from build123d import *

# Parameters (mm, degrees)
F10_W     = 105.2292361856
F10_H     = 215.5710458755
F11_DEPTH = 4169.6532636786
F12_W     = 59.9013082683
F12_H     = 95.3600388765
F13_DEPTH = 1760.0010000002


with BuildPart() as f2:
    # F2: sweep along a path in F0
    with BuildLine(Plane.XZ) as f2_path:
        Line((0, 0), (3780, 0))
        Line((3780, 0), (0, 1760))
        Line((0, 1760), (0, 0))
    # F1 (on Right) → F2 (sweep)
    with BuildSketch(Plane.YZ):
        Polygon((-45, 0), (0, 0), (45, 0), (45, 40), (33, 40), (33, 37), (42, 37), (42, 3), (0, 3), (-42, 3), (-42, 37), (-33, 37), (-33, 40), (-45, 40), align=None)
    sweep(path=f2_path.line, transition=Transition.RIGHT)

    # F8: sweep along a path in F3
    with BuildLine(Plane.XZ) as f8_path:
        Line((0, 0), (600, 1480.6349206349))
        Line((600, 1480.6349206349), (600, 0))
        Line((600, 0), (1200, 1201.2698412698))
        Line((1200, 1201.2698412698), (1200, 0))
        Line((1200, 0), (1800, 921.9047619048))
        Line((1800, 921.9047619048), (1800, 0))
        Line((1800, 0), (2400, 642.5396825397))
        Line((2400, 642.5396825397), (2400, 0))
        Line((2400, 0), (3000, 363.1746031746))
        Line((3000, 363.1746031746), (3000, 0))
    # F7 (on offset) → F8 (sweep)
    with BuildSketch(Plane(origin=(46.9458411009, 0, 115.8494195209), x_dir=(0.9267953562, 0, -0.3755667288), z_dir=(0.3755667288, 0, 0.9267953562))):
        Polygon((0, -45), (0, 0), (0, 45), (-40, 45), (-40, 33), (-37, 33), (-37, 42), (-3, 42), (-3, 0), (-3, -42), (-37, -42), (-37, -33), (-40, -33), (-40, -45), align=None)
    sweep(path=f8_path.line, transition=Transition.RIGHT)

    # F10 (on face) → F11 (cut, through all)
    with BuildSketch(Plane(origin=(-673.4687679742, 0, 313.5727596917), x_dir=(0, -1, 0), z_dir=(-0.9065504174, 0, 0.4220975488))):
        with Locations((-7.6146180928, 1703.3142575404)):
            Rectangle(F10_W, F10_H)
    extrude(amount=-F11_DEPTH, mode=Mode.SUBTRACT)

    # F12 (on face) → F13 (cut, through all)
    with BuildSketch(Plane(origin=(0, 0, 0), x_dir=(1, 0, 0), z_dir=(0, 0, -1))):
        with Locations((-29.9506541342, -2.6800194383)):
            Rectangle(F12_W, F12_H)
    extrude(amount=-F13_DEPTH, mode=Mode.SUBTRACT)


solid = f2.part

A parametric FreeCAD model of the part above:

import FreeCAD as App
import Part
import Sketcher

V = App.Vector
Q = App.Units.Quantity


def add_polygon(sketch, points):
    """Adds a closed chain of lines whose ends are joined by coincident constraints."""
    first, n = sketch.GeometryCount, len(points)
    for a, b in zip(points, points[1:] + points[:1]):
        sketch.addGeometry(Part.LineSegment(App.Vector(*a, 0), App.Vector(*b, 0)), False)
    for i in range(n):
        sketch.addConstraint(Sketcher.Constraint("Coincident", first + i, 2, first + (i + 1) % n, 1))

doc = App.newDocument("Part")
body = doc.addObject("PartDesign::Body", "Body")

# Sketch on YZ plane
sketch1 = body.newObject("Sketcher::SketchObject", "Sketch")
sketch1.AttachmentSupport = (doc.getObject("YZ_Plane"), [""])
sketch1.MapMode = "FlatFace"
add_polygon(sketch1, [(-45, 0), (45, 0), (45, 40), (33, 40), (33, 37), (42, 37), (42, 3), (-42, 3), (-42, 37), (-33, 37), (-33, 40), (-45, 40)])  # lines 0-11
sketch1.addConstraint([
    Sketcher.Constraint("Horizontal", 0),
    Sketcher.Constraint("Vertical", 1),
    Sketcher.Constraint("Horizontal", 2),
    Sketcher.Constraint("Vertical", 3),
    Sketcher.Constraint("Horizontal", 4),
    Sketcher.Constraint("Vertical", 5),
    Sketcher.Constraint("Horizontal", 6),
    Sketcher.Constraint("Vertical", 7),
    Sketcher.Constraint("Horizontal", 8),
    Sketcher.Constraint("Vertical", 9),
    Sketcher.Constraint("Horizontal", 10),
    Sketcher.Constraint("Vertical", 11),
    Sketcher.Constraint("Symmetric", 0, 2, 11, 2, -1, 1),
    Sketcher.Constraint("Symmetric", 4, 2, 7, 2, -2),
    Sketcher.Constraint("Symmetric", 2, 2, 9, 2, -2),
    Sketcher.Constraint("DistanceX", 0, 1, 0, 2, Q("90 mm")),
    Sketcher.Constraint("DistanceX", 2, 2, 2, 1, Q("12 mm")),
    Sketcher.Constraint("DistanceX", 4, 1, 4, 2, Q("9 mm")),
    Sketcher.Constraint("DistanceY", 1, 1, 1, 2, Q("40 mm")),
    Sketcher.Constraint("DistanceY", 3, 2, 3, 1, Q("3 mm")),
    Sketcher.Constraint("DistanceY", 5, 2, 5, 1, Q("34 mm")),
])

# Sketch on XZ plane
sketch2 = body.newObject("Sketcher::SketchObject", "Sketch001")
sketch2.AttachmentSupport = (doc.getObject("XZ_Plane"), [""])
sketch2.MapMode = "FlatFace"
add_polygon(sketch2, [(0, 0), (3780, 0), (0, 1760)])  # lines 0-2
sketch2.addConstraint([
    Sketcher.Constraint("Horizontal", 0),
    Sketcher.Constraint("Vertical", 2),
    Sketcher.Constraint("Coincident", 2, 2, -1, 1),
    Sketcher.Constraint("DistanceX", 0, 1, 0, 2, Q("3780 mm")),
    Sketcher.Constraint("DistanceY", 2, 2, 2, 1, Q("1760 mm")),
])
doc.recompute()

additivepipe = body.newObject("PartDesign::AdditivePipe", "AdditivePipe")
additivepipe.Profile = sketch1
additivepipe.Spine = (sketch2, ["Edge1", "Edge2", "Edge3"])
additivepipe.Transition = "Right corner"

# Sketch on an angled plane
sketch3 = body.newObject("Sketcher::SketchObject", "Sketch002")
sketch3.Placement = App.Placement(V(46.945841, 0, 115.84942), App.Rotation(V(0.926795356, 0, -0.375566729), V(0, 1, 0), V(0.375566729, 0, 0.926795356), "ZXY"))
add_polygon(sketch3, [(0, -45), (0, 45), (-40, 45), (-40, 33), (-37, 33), (-37, 42), (-3, 42), (-3, -42), (-37, -42), (-37, -33), (-40, -33), (-40, -45)])  # lines 0-11
sketch3.addConstraint([
    Sketcher.Constraint("Vertical", 0),
    Sketcher.Constraint("Horizontal", 1),
    Sketcher.Constraint("Vertical", 2),
    Sketcher.Constraint("Horizontal", 3),
    Sketcher.Constraint("Vertical", 4),
    Sketcher.Constraint("Horizontal", 5),
    Sketcher.Constraint("Vertical", 6),
    Sketcher.Constraint("Horizontal", 7),
    Sketcher.Constraint("Vertical", 8),
    Sketcher.Constraint("Horizontal", 9),
    Sketcher.Constraint("Vertical", 10),
    Sketcher.Constraint("Horizontal", 11),
    Sketcher.Constraint("Symmetric", 0, 2, 11, 2, -1, 1),
    Sketcher.Constraint("Symmetric", 4, 2, 7, 2, -1),
    Sketcher.Constraint("Symmetric", 2, 2, 9, 2, -1),
    Sketcher.Constraint("DistanceX", 1, 2, 1, 1, Q("40 mm")),
    Sketcher.Constraint("DistanceX", 3, 1, 3, 2, Q("3 mm")),
    Sketcher.Constraint("DistanceX", 5, 1, 5, 2, Q("34 mm")),
    Sketcher.Constraint("DistanceY", 0, 1, 0, 2, Q("90 mm")),
    Sketcher.Constraint("DistanceY", 2, 2, 2, 1, Q("12 mm")),
    Sketcher.Constraint("DistanceY", 4, 1, 4, 2, Q("9 mm")),
])

# Sketch on XZ plane
sketch4 = body.newObject("Sketcher::SketchObject", "Sketch003")
sketch4.AttachmentSupport = (doc.getObject("XZ_Plane"), [""])
sketch4.MapMode = "FlatFace"
sketch4.addGeometry([
    Part.LineSegment(V(0, 0, 0), V(600, 1481, 0)),  # 0
    Part.LineSegment(V(600, 1481, 0), V(600, 0, 0)),  # 1
    Part.LineSegment(V(600, 0, 0), V(1200, 1201, 0)),  # 2
    Part.LineSegment(V(1200, 1201, 0), V(1200, 0, 0)),  # 3
    Part.LineSegment(V(1200, 0, 0), V(1800, 922, 0)),  # 4
    Part.LineSegment(V(1800, 922, 0), V(1800, 0, 0)),  # 5
    Part.LineSegment(V(1800, 0, 0), V(2400, 643, 0)),  # 6
    Part.LineSegment(V(2400, 643, 0), V(2400, 0, 0)),  # 7
    Part.LineSegment(V(2400, 0, 0), V(3000, 363, 0)),  # 8
    Part.LineSegment(V(3000, 363, 0), V(3000, 0, 0)),  # 9
], False)
sketch4.addConstraint([
    Sketcher.Constraint("Coincident", 0, 2, 1, 1),
    Sketcher.Constraint("Coincident", 1, 2, 2, 1),
    Sketcher.Constraint("Coincident", 2, 2, 3, 1),
    Sketcher.Constraint("Coincident", 3, 2, 4, 1),
    Sketcher.Constraint("Coincident", 4, 2, 5, 1),
    Sketcher.Constraint("Coincident", 5, 2, 6, 1),
    Sketcher.Constraint("Coincident", 6, 2, 7, 1),
    Sketcher.Constraint("Coincident", 7, 2, 8, 1),
    Sketcher.Constraint("Coincident", 8, 2, 9, 1),
    Sketcher.Constraint("Vertical", 1),
    Sketcher.Constraint("Vertical", 3),
    Sketcher.Constraint("Vertical", 5),
    Sketcher.Constraint("Vertical", 7),
    Sketcher.Constraint("Vertical", 9),
    Sketcher.Constraint("Coincident", 0, 1, -1, 1),
    Sketcher.Constraint("PointOnObject", 1, 2, -1),
    Sketcher.Constraint("PointOnObject", 3, 2, -1),
    Sketcher.Constraint("PointOnObject", 5, 2, -1),
    Sketcher.Constraint("PointOnObject", 7, 2, -1),
    Sketcher.Constraint("PointOnObject", 9, 2, -1),
    Sketcher.Constraint("DistanceX", -1, 1, 0, 2, Q("600 mm")),
    Sketcher.Constraint("DistanceX", -1, 1, 2, 2, Q("1200 mm")),
    Sketcher.Constraint("DistanceX", -1, 1, 4, 2, Q("1800 mm")),
    Sketcher.Constraint("DistanceX", -1, 1, 6, 2, Q("2400 mm")),
    Sketcher.Constraint("DistanceX", -1, 1, 8, 2, Q("3000 mm")),
    Sketcher.Constraint("DistanceY", 1, 2, 1, 1, Q("1480.634921 mm")),
    Sketcher.Constraint("DistanceY", 3, 2, 3, 1, Q("1201.269841 mm")),
    Sketcher.Constraint("DistanceY", 5, 2, 5, 1, Q("921.904762 mm")),
    Sketcher.Constraint("Distance", 8, Q("701.35283 mm")),
    Sketcher.Constraint("DistanceY", 7, 2, 7, 1, Q("642.539683 mm")),
])
doc.recompute()

additivepipe2 = body.newObject("PartDesign::AdditivePipe", "AdditivePipe001")
additivepipe2.Profile = sketch3
additivepipe2.Spine = (sketch4, ["Edge1", "Edge2", "Edge3", "Edge4", "Edge5", "Edge6", "Edge7", "Edge8", "Edge9", "Edge10"])
additivepipe2.Transition = "Right corner"

# Sketch on an angled plane
sketch5 = body.newObject("Sketcher::SketchObject", "Sketch004")
sketch5.Placement = App.Placement(V(-673.468768, 0, 313.57276), App.Rotation(V(0, -1, 0), V(0.422097549, 0, 0.906550417), V(-0.906550417, 0, 0.422097549), "ZXY"))
add_polygon(sketch5, [(-60, 1811), (-60, 1596), (45, 1596), (45, 1811)])  # lines 0-3
sketch5.addConstraint([
    Sketcher.Constraint("Vertical", 0),
    Sketcher.Constraint("Horizontal", 1),
    Sketcher.Constraint("Vertical", 2),
    Sketcher.Constraint("Horizontal", 3),
    Sketcher.Constraint("DistanceX", -1, 1, 1, 2, Q("45 mm")),
    Sketcher.Constraint("DistanceX", 1, 1, 1, 2, Q("105.229236 mm")),
    Sketcher.Constraint("DistanceY", 0, 2, 0, 1, Q("215.571046 mm")),
    Sketcher.Constraint("DistanceY", -1, 1, 2, 2, Q("1811.099779 mm")),
])
pocket1 = body.newObject("PartDesign::Pocket", "Pocket")
pocket1.Profile = sketch5
pocket1.Type = "ThroughAll"

# Sketch on XY plane
sketch6 = body.newObject("Sketcher::SketchObject", "Sketch005")
sketch6.AttachmentSupport = (doc.getObject("XY_Plane"), [""])
sketch6.MapMode = "FlatFace"
add_polygon(sketch6, [(-60, -45), (-60, 50), (0, 50), (0, -45)])  # lines 0-3
sketch6.addConstraint([
    Sketcher.Constraint("Vertical", 0),
    Sketcher.Constraint("Horizontal", 1),
    Sketcher.Constraint("Vertical", 2),
    Sketcher.Constraint("Horizontal", 3),
    Sketcher.Constraint("PointOnObject", 1, 2, -2),
    Sketcher.Constraint("DistanceY", 2, 2, -1, 1, Q("45 mm")),
    Sketcher.Constraint("DistanceX", 1, 1, 1, 2, Q("59.901308 mm")),
    Sketcher.Constraint("DistanceY", 0, 1, 0, 2, Q("95.360039 mm")),
])
pocket2 = body.newObject("PartDesign::Pocket", "Pocket001")
pocket2.Profile = sketch6
pocket2.Type = "ThroughAll"
pocket2.Reversed = True

doc.recompute()
